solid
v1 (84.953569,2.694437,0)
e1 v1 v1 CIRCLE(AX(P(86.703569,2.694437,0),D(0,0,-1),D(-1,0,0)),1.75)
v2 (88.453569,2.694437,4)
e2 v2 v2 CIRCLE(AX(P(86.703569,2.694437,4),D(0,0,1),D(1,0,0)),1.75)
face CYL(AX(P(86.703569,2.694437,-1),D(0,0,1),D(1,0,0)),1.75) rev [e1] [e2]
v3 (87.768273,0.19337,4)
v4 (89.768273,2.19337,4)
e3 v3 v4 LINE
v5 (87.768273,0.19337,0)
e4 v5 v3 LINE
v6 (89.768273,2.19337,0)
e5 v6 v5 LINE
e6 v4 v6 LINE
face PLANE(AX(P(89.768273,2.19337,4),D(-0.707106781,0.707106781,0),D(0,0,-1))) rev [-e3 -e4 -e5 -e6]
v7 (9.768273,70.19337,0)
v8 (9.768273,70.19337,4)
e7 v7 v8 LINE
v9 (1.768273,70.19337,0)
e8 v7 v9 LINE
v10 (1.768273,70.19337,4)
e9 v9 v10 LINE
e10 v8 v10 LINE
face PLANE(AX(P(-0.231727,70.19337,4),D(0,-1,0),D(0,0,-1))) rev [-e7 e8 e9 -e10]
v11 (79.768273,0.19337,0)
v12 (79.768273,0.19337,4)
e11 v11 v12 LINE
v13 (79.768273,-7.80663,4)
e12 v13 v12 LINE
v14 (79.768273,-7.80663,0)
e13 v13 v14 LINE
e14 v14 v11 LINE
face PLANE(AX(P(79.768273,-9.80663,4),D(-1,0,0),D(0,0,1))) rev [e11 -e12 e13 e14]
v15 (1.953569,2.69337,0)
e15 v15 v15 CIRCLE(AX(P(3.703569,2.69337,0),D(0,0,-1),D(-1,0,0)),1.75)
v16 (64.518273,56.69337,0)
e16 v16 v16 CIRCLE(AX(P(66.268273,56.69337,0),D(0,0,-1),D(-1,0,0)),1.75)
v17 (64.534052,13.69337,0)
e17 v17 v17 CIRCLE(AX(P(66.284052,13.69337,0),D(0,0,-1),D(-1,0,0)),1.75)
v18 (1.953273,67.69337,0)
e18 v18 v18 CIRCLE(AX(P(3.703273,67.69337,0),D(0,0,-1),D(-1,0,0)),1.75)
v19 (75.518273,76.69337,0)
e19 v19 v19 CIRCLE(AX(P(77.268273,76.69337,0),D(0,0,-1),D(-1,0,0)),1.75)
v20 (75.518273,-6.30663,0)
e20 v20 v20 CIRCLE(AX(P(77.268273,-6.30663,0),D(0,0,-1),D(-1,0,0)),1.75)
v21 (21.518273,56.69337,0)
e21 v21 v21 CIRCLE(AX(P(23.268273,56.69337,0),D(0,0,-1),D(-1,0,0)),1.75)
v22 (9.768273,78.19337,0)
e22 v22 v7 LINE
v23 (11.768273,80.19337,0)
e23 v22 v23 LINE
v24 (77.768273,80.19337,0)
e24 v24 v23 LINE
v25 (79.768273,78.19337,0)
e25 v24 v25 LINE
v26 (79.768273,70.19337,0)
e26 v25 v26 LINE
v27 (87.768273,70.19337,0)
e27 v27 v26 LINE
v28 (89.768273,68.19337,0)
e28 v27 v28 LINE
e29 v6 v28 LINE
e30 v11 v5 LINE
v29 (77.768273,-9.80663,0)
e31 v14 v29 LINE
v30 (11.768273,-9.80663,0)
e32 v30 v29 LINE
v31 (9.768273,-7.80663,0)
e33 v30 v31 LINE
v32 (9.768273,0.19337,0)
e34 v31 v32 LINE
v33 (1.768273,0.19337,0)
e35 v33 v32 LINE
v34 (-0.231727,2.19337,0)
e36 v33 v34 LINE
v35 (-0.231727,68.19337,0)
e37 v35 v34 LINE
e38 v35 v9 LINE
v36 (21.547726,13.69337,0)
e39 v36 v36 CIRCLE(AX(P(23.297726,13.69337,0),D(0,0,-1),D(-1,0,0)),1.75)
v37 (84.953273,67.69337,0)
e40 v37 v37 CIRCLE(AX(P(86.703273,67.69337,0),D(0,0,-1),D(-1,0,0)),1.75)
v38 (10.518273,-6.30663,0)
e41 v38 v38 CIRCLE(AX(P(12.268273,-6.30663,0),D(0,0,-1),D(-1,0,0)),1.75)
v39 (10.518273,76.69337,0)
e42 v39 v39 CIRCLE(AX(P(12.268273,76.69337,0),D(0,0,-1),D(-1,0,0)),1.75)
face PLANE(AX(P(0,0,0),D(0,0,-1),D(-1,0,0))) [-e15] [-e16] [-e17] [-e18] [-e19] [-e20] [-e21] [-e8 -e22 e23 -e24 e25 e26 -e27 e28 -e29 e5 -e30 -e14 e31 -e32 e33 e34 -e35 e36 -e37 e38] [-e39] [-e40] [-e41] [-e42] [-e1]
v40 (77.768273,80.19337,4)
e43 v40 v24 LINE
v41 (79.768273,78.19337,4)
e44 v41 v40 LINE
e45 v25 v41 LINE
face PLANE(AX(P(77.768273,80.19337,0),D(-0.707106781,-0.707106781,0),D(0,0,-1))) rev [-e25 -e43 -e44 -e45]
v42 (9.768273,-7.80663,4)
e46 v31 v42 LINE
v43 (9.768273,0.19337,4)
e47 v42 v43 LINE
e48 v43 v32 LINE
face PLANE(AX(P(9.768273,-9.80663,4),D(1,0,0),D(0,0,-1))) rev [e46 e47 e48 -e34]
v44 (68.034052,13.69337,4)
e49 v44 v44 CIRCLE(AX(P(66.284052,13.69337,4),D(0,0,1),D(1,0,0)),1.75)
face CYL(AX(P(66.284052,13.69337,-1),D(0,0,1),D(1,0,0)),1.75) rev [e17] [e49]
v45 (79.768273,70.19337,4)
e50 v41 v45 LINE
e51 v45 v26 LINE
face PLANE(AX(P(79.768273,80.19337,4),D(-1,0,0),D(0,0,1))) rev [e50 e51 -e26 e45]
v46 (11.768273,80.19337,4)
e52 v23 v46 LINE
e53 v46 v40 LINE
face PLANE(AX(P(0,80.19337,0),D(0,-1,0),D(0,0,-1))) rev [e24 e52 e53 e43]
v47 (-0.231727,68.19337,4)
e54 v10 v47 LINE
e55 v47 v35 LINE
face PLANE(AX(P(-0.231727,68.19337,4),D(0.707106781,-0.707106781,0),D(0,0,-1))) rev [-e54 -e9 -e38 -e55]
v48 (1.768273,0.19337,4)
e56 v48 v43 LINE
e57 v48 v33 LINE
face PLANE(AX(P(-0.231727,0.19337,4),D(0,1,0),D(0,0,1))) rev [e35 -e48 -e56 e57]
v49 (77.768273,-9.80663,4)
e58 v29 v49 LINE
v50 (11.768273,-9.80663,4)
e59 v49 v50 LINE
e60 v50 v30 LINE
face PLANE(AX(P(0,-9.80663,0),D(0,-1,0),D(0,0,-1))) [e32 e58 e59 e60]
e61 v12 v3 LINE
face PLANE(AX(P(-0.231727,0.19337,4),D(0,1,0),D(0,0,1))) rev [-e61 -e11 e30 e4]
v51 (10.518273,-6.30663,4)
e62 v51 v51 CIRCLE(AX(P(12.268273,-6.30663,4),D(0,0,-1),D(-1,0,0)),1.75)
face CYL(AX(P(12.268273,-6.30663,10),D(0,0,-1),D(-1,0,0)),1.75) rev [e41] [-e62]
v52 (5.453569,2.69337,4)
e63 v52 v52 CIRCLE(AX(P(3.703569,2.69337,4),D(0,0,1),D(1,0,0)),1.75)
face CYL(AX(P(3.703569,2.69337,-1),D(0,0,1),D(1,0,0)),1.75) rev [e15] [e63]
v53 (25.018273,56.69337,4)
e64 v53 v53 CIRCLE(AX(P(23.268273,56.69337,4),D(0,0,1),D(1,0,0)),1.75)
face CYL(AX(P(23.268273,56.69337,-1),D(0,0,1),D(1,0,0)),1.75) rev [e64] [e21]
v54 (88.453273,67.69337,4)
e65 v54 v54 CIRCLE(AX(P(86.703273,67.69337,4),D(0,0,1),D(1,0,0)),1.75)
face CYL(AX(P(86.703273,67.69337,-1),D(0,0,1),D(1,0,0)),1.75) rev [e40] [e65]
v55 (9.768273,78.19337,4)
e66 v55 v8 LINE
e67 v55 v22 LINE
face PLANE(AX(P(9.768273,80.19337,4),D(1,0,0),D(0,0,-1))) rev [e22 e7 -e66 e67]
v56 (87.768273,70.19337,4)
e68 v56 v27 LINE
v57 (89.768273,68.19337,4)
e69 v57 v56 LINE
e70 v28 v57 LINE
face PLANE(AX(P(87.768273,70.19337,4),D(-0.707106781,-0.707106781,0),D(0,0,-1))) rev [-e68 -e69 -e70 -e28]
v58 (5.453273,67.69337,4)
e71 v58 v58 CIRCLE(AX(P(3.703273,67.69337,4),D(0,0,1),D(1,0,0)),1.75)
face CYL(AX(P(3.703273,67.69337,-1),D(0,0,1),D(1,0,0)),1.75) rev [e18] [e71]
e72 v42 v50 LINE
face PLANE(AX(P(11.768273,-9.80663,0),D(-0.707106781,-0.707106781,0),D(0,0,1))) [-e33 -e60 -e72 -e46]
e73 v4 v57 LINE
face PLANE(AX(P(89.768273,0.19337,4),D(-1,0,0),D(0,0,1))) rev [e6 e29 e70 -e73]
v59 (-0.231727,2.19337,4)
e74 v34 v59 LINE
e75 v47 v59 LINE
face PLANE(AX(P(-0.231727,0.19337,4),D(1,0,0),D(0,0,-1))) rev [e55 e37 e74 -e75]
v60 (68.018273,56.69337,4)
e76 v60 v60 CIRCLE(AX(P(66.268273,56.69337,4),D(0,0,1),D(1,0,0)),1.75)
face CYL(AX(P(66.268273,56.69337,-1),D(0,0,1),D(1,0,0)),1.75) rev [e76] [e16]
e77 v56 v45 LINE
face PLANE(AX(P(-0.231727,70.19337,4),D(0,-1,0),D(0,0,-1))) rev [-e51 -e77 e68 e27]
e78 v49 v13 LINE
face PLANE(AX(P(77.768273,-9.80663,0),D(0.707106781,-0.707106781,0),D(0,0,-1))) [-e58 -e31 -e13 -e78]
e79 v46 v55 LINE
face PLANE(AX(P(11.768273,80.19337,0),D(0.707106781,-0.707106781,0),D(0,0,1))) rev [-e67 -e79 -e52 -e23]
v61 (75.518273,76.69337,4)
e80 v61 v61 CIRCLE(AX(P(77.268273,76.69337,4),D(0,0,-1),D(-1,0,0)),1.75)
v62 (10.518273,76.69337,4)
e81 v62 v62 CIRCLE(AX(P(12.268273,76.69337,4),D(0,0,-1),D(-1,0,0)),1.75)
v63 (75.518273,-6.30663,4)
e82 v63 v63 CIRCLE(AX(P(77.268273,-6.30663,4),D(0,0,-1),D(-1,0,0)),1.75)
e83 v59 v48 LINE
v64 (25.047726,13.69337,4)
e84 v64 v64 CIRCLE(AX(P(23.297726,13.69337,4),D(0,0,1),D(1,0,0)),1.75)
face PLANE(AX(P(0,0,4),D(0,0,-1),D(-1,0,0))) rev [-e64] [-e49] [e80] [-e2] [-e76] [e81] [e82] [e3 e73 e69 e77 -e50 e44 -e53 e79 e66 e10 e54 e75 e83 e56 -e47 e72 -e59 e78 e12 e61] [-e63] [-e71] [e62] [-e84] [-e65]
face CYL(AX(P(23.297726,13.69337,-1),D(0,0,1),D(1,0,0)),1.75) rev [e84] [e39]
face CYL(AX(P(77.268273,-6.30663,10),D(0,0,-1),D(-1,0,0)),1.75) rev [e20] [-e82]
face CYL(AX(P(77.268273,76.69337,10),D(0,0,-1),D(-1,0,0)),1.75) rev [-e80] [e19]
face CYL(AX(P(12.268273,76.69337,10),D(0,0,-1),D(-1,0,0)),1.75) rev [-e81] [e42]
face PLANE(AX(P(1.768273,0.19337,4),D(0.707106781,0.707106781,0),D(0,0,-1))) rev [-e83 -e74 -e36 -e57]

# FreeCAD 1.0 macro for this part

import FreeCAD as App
import Part
import Sketcher
from FreeCAD import Vector


def edges_at(feature, points):
    """Names of the edges that pass closest to the given points."""
    edges = feature.Shape.Edges
    near = lambda p: min(range(len(edges)), key=lambda i: edges[i].distToShape(Part.Vertex(*p))[0])
    return sorted({f"Edge{near(p) + 1}" for p in points})

doc = App.newDocument("Part")
body = doc.addObject("PartDesign::Body", "Body")

# Sketch on XY plane
sketch1 = body.newObject("Sketcher::SketchObject", "Sketch")
sketch1.AttachmentSupport = (doc.getObject("XY_Plane"), [""])
sketch1.MapMode = "FlatFace"
sketch1.addGeometry([
    Part.LineSegment(Vector(0, 70, 0), Vector(0, 0, 0)),
    Part.LineSegment(Vector(0, 0, 0), Vector(90, 0, 0)),
    Part.LineSegment(Vector(90, 0, 0), Vector(90, 70, 0)),
    Part.LineSegment(Vector(90, 70, 0), Vector(0, 70, 0)),
], False)
sketch1.addConstraint([
    Sketcher.Constraint("Coincident", 0, 2, 1, 1),
    Sketcher.Constraint("Coincident", 1, 2, 2, 1),
    Sketcher.Constraint("Coincident", 2, 2, 3, 1),
    Sketcher.Constraint("Coincident", 3, 2, 0, 1),
    Sketcher.Constraint("Vertical", 0),
    Sketcher.Constraint("Horizontal", 1),
    Sketcher.Constraint("Vertical", 2),
    Sketcher.Constraint("Horizontal", 3),
    Sketcher.Constraint("DistanceX", 1, 1, 1, 2, 90.0),
    Sketcher.Constraint("DistanceY", 0, 2, 0, 1, 70.0),
    Sketcher.Constraint("DistanceY", -1, 1, 0, 2, 0.19337),
    Sketcher.Constraint("DistanceX", 0, 2, -1, 1, 0.231727),
])
pad1 = body.newObject("PartDesign::Pad", "Pad")
pad1.Profile = sketch1
pad1.Length = 4

# Sketch on XY plane
sketch2 = body.newObject("Sketcher::SketchObject", "Sketch001")
sketch2.AttachmentSupport = (doc.getObject("XY_Plane"), [""])
sketch2.MapMode = "FlatFace"
sketch2.AttachmentOffset = App.Placement(Vector(0, 0, 4), App.Rotation())
sketch2.addGeometry([
    Part.Circle(Vector(3.7, 2.7, 0), Vector(0, 0, 1), 1.8),  # 0
    Part.Circle(Vector(86.7, 2.7, 0), Vector(0, 0, 1), 1.8),  # 1
    Part.Circle(Vector(86.7, 67.7, 0), Vector(0, 0, 1), 1.8),  # 2
    Part.Circle(Vector(3.7, 67.7, 0), Vector(0, 0, 1), 1.8),  # 3
    Part.Circle(Vector(23.3, 13.7, 0), Vector(0, 0, 1), 1.8),  # 4
    Part.Circle(Vector(66.3, 13.7, 0), Vector(0, 0, 1), 1.8),  # 5
    Part.Circle(Vector(66.3, 56.7, 0), Vector(0, 0, 1), 1.8),  # 6
    Part.Circle(Vector(23.3, 56.7, 0), Vector(0, 0, 1), 1.8),  # 7
], False)
sketch2.addConstraint([
    Sketcher.Constraint("Equal", 0, 1),
    Sketcher.Constraint("Equal", 1, 2),
    Sketcher.Constraint("Equal", 2, 3),
    Sketcher.Constraint("Equal", 3, 4),
    Sketcher.Constraint("Equal", 4, 5),
    Sketcher.Constraint("Equal", 5, 6),
    Sketcher.Constraint("Equal", 6, 7),
    Sketcher.Constraint("Horizontal", 2, 3, 3, 3),
    Sketcher.Constraint("Horizontal", 4, 3, 5, 3),
    Sketcher.Constraint("Horizontal", 6, 3, 7, 3),
    Sketcher.Constraint("Diameter", 0, 3.5),
    Sketcher.Constraint("DistanceX", 0, 3, 1, 3, 83.0),
    Sketcher.Constraint("DistanceY", 0, 3, 2, 3, 65.0),
    Sketcher.Constraint("DistanceX", 3, 3, 2, 3, 83.0),
    Sketcher.Constraint("DistanceY", 0, 3, 4, 3, 11.0),
    Sketcher.Constraint("DistanceY", 6, 3, 2, 3, 11.0),
    Sketcher.Constraint("DistanceX", 7, 3, 6, 3, 43.0),
    Sketcher.Constraint("DistanceX", 6, 3, 2, 3, 20.435),
    Sketcher.Constraint("DistanceX", -1, 1, 0, 3, 3.703569),
    Sketcher.Constraint("DistanceY", -1, 1, 0, 3, 2.69337),
    Sketcher.Constraint("DistanceX", -1, 1, 5, 3, 66.284052),
    Sketcher.Constraint("DistanceX", 5, 3, 2, 3, 20.419221),
    Sketcher.Constraint("DistanceY", -1, 1, 1, 3, 2.694437),
    Sketcher.Constraint("DistanceX", -1, 1, 4, 3, 23.297726),
])
pocket1 = body.newObject("PartDesign::Pocket", "Pocket")
pocket1.Profile = sketch2
pocket1.Length = 5
doc.recompute()

chamfer = body.newObject("PartDesign::Chamfer", "Chamfer")
chamfer.Base = (pocket1, edges_at(pocket1, [(89.768, 0.193, 2)]))
chamfer.Size = 2
doc.recompute()

chamfer2 = body.newObject("PartDesign::Chamfer", "Chamfer001")
chamfer2.Base = (chamfer, edges_at(chamfer, [(-0.232, 0.193, 2)]))
chamfer2.Size = 2
doc.recompute()

chamfer3 = body.newObject("PartDesign::Chamfer", "Chamfer002")
chamfer3.Base = (chamfer2, edges_at(chamfer2, [(-0.232, 70.193, 2)]))
chamfer3.Size = 2
doc.recompute()

chamfer4 = body.newObject("PartDesign::Chamfer", "Chamfer003")
chamfer4.Base = (chamfer3, edges_at(chamfer3, [(89.768, 70.193, 2)]))
chamfer4.Size = 2

# Sketch on XZ plane
sketch3 = body.newObject("Sketcher::SketchObject", "Sketch002")
sketch3.AttachmentSupport = (doc.getObject("XZ_Plane"), [""])
sketch3.MapMode = "FlatFace"
sketch3.AttachmentOffset = App.Placement(Vector(0, 0, -70.19337), App.Rotation())
sketch3.addGeometry([
    Part.LineSegment(Vector(9.8, 0, 0), Vector(9.8, 4, 0)),
    Part.LineSegment(Vector(9.8, 4, 0), Vector(79.8, 4, 0)),
    Part.LineSegment(Vector(79.8, 4, 0), Vector(79.8, 0, 0)),
    Part.LineSegment(Vector(79.8, 0, 0), Vector(9.8, 0, 0)),
], False)
sketch3.addConstraint([
    Sketcher.Constraint("Coincident", 0, 2, 1, 1),
    Sketcher.Constraint("Coincident", 1, 2, 2, 1),
    Sketcher.Constraint("Coincident", 2, 2, 3, 1),
    Sketcher.Constraint("Coincident", 3, 2, 0, 1),
    Sketcher.Constraint("Vertical", 0),
    Sketcher.Constraint("Horizontal", 1),
    Sketcher.Constraint("Vertical", 2),
    Sketcher.Constraint("Horizontal", 3),
    Sketcher.Constraint("PointOnObject", 2, 2, -1),
    Sketcher.Constraint("DistanceX", 1, 1, 1, 2, 70.0),
    Sketcher.Constraint("DistanceY", 0, 1, 0, 2, 4.0),
    Sketcher.Constraint("DistanceX", -1, 1, 0, 2, 9.768273),
])
pad2 = body.newObject("PartDesign::Pad", "Pad001")
pad2.Profile = sketch3
pad2.Length = 10
pad2.Reversed = True

# Sketch on XZ plane
sketch4 = body.newObject("Sketcher::SketchObject", "Sketch003")
sketch4.AttachmentSupport = (doc.getObject("XZ_Plane"), [""])
sketch4.MapMode = "FlatFace"
sketch4.AttachmentOffset = App.Placement(Vector(0, 0, -0.19337), App.Rotation())
sketch4.addGeometry([
    Part.LineSegment(Vector(79.8, 0, 0), Vector(79.8, 4, 0)),
    Part.LineSegment(Vector(79.8, 4, 0), Vector(9.8, 4, 0)),
    Part.LineSegment(Vector(9.8, 4, 0), Vector(9.8, 0, 0)),
    Part.LineSegment(Vector(9.8, 0, 0), Vector(79.8, 0, 0)),
], False)
sketch4.addConstraint([
    Sketcher.Constraint("Coincident", 0, 2, 1, 1),
    Sketcher.Constraint("Coincident", 1, 2, 2, 1),
    Sketcher.Constraint("Coincident", 2, 2, 3, 1),
    Sketcher.Constraint("Coincident", 3, 2, 0, 1),
    Sketcher.Constraint("Vertical", 0),
    Sketcher.Constraint("Horizontal", 1),
    Sketcher.Constraint("Vertical", 2),
    Sketcher.Constraint("Horizontal", 3),
    Sketcher.Constraint("PointOnObject", 2, 2, -1),
    Sketcher.Constraint("DistanceX", 1, 2, 1, 1, 70.0),
    Sketcher.Constraint("DistanceY", 0, 1, 0, 2, 4.0),
    Sketcher.Constraint("DistanceX", -1, 1, 0, 2, 79.768273),
])
pad3 = body.newObject("PartDesign::Pad", "Pad002")
pad3.Profile = sketch4
pad3.Length = 10

# Sketch on XY plane
sketch5 = body.newObject("Sketcher::SketchObject", "Sketch004")
sketch5.AttachmentSupport = (doc.getObject("XY_Plane"), [""])
sketch5.MapMode = "FlatFace"
sketch5.addGeometry([
    Part.Circle(Vector(12.3, 76.7, 0), Vector(0, 0, 1), 1.8),
    Part.Circle(Vector(77.3, 76.7, 0), Vector(0, 0, 1), 1.8),
    Part.Circle(Vector(77.3, -6.3, 0), Vector(0, 0, 1), 1.8),
    Part.Circle(Vector(12.3, -6.3, 0), Vector(0, 0, 1), 1.8),
], False)
sketch5.addConstraint([
    Sketcher.Constraint("Equal", 0, 1),
    Sketcher.Constraint("Equal", 1, 2),
    Sketcher.Constraint("Equal", 2, 3),
    Sketcher.Constraint("Horizontal", 0, 3, 1, 3),
    Sketcher.Constraint("Horizontal", 2, 3, 3, 3),
    Sketcher.Constraint("Vertical", 1, 3, 2, 3),
    Sketcher.Constraint("Vertical", 0, 3, 3, 3),
    Sketcher.Constraint("Diameter", 0, 3.5),
    Sketcher.Constraint("DistanceX", 0, 3, 1, 3, 65.0),
    Sketcher.Constraint("DistanceY", 2, 3, 1, 3, 83.0),
    Sketcher.Constraint("DistanceY", -1, 1, 0, 3, 76.69337),
    Sketcher.Constraint("DistanceX", -1, 1, 0, 3, 12.268273),
])
pocket2 = body.newObject("PartDesign::Pocket", "Pocket001")
pocket2.Profile = sketch5
pocket2.Length = 10
pocket2.Reversed = True
doc.recompute()

chamfer5 = body.newObject("PartDesign::Chamfer", "Chamfer004")
chamfer5.Base = (pocket2, edges_at(pocket2, [
    (9.768, 80.193, 2),
    (79.768, 80.193, 2),
    (9.768, -9.807, 2),
    (79.768, -9.807, 2),
]))
chamfer5.Size = 2

doc.recompute()
